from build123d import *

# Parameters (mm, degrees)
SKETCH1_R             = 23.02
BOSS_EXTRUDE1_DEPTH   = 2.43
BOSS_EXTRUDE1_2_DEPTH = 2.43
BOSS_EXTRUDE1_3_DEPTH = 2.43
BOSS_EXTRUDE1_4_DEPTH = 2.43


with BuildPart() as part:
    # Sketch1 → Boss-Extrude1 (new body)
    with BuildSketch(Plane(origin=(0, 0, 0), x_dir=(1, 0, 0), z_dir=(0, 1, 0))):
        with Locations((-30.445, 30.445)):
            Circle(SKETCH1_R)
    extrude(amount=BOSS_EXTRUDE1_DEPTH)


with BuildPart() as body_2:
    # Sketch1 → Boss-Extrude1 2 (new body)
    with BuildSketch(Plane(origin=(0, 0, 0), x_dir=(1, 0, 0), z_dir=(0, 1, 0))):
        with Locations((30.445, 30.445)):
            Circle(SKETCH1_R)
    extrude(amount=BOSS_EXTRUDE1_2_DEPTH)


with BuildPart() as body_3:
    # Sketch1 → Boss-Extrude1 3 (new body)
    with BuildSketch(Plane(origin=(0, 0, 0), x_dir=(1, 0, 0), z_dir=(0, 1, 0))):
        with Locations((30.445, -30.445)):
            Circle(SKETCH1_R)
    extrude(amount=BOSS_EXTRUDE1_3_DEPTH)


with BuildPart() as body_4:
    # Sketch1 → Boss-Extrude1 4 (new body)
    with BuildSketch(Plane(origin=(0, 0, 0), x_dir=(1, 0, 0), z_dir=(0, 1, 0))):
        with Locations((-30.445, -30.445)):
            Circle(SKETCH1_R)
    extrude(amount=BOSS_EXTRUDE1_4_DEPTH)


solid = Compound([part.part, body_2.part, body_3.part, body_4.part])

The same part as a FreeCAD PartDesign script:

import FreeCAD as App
import Part
import Sketcher
Q = App.Units.Quantity

doc = App.newDocument("Part")
params = doc.addObject("Spreadsheet::Sheet", "Params")
for row, (alias, value) in enumerate([
    ("sketch1_diameter", "46.04 mm"),
    ("pad1_length", "2.43 mm"),
    ("sketch2_diameter", "46.04 mm"),
    ("pad2_length", "2.43 mm"),
    ("sketch3_diameter", "46.04 mm"),
    ("pad3_length", "2.43 mm"),
    ("sketch4_diameter", "46.04 mm"),
    ("pad4_length", "2.43 mm"),
], start=1):
    params.set(f"A{row}", alias)
    params.set(f"B{row}", "=" + value)
    params.setAlias(f"B{row}", alias)

body = doc.addObject("PartDesign::Body", "Body")

sketch1 = body.newObject("Sketcher::SketchObject", "Sketch")
sketch1.AttachmentSupport = (doc.getObject("XZ_Plane"), [""])
sketch1.MapMode = "FlatFace"
sketch1.addGeometry(Part.Circle(App.Vector(-30.445, -30.445, 0), App.Vector(0, 0, 1), 23.02), False)
sketch1.addConstraint(Sketcher.Constraint("Diameter", 0, Q("46.04 mm")))
sketch1.addConstraint(Sketcher.Constraint("DistanceX", 0, 3, -1, 1, Q("30.445 mm")))
sketch1.addConstraint(Sketcher.Constraint("DistanceY", 0, 3, -1, 1, Q("30.445 mm")))
sketch1.setExpression("Constraints[0]", "Params.sketch1_diameter")
pad1 = body.newObject("PartDesign::Pad", "Pad")
pad1.Profile = sketch1
pad1.setExpression("Length", "Params.pad1_length")
pad1.Reversed = True
body2 = doc.addObject("PartDesign::Body", "Body001")

sketch2 = body2.newObject("Sketcher::SketchObject", "Sketch001")
sketch2.AttachmentSupport = (doc.getObject("XZ_Plane001"), [""])
sketch2.MapMode = "FlatFace"
sketch2.addGeometry(Part.Circle(App.Vector(30.445, -30.445, 0), App.Vector(0, 0, 1), 23.02), False)
sketch2.addConstraint(Sketcher.Constraint("Diameter", 0, Q("46.04 mm")))
sketch2.addConstraint(Sketcher.Constraint("DistanceX", -1, 1, 0, 3, Q("30.445 mm")))
sketch2.addConstraint(Sketcher.Constraint("DistanceY", 0, 3, -1, 1, Q("30.445 mm")))
sketch2.setExpression("Constraints[0]", "Params.sketch2_diameter")
pad2 = body2.newObject("PartDesign::Pad", "Pad001")
pad2.Profile = sketch2
pad2.setExpression("Length", "Params.pad2_length")
pad2.Reversed = True
body3 = doc.addObject("PartDesign::Body", "Body002")

sketch3 = body3.newObject("Sketcher::SketchObject", "Sketch002")
sketch3.AttachmentSupport = (doc.getObject("XZ_Plane002"), [""])
sketch3.MapMode = "FlatFace"
sketch3.addGeometry(Part.Circle(App.Vector(30.445, 30.445, 0), App.Vector(0, 0, 1), 23.02), False)
sketch3.addConstraint(Sketcher.Constraint("Diameter", 0, Q("46.04 mm")))
sketch3.addConstraint(Sketcher.Constraint("DistanceX", -1, 1, 0, 3, Q("30.445 mm")))
sketch3.addConstraint(Sketcher.Constraint("DistanceY", -1, 1, 0, 3, Q("30.445 mm")))
sketch3.setExpression("Constraints[0]", "Params.sketch3_diameter")
pad3 = body3.newObject("PartDesign::Pad", "Pad002")
pad3.Profile = sketch3
pad3.setExpression("Length", "Params.pad3_length")
pad3.Reversed = True
body4 = doc.addObject("PartDesign::Body", "Body003")

sketch4 = body4.newObject("Sketcher::SketchObject", "Sketch003")
sketch4.AttachmentSupport = (doc.getObject("XZ_Plane003"), [""])
sketch4.MapMode = "FlatFace"
sketch4.addGeometry(Part.Circle(App.Vector(-30.445, 30.445, 0), App.Vector(0, 0, 1), 23.02), False)
sketch4.addConstraint(Sketcher.Constraint("Diameter", 0, Q("46.04 mm")))
sketch4.addConstraint(Sketcher.Constraint("DistanceX", 0, 3, -1, 1, Q("30.445 mm")))
sketch4.addConstraint(Sketcher.Constraint("DistanceY", -1, 1, 0, 3, Q("30.445 mm")))
sketch4.setExpression("Constraints[0]", "Params.sketch4_diameter")
pad4 = body4.newObject("PartDesign::Pad", "Pad003")
pad4.Profile = sketch4
pad4.setExpression("Length", "Params.pad4_length")
pad4.Reversed = True

doc.recompute()
